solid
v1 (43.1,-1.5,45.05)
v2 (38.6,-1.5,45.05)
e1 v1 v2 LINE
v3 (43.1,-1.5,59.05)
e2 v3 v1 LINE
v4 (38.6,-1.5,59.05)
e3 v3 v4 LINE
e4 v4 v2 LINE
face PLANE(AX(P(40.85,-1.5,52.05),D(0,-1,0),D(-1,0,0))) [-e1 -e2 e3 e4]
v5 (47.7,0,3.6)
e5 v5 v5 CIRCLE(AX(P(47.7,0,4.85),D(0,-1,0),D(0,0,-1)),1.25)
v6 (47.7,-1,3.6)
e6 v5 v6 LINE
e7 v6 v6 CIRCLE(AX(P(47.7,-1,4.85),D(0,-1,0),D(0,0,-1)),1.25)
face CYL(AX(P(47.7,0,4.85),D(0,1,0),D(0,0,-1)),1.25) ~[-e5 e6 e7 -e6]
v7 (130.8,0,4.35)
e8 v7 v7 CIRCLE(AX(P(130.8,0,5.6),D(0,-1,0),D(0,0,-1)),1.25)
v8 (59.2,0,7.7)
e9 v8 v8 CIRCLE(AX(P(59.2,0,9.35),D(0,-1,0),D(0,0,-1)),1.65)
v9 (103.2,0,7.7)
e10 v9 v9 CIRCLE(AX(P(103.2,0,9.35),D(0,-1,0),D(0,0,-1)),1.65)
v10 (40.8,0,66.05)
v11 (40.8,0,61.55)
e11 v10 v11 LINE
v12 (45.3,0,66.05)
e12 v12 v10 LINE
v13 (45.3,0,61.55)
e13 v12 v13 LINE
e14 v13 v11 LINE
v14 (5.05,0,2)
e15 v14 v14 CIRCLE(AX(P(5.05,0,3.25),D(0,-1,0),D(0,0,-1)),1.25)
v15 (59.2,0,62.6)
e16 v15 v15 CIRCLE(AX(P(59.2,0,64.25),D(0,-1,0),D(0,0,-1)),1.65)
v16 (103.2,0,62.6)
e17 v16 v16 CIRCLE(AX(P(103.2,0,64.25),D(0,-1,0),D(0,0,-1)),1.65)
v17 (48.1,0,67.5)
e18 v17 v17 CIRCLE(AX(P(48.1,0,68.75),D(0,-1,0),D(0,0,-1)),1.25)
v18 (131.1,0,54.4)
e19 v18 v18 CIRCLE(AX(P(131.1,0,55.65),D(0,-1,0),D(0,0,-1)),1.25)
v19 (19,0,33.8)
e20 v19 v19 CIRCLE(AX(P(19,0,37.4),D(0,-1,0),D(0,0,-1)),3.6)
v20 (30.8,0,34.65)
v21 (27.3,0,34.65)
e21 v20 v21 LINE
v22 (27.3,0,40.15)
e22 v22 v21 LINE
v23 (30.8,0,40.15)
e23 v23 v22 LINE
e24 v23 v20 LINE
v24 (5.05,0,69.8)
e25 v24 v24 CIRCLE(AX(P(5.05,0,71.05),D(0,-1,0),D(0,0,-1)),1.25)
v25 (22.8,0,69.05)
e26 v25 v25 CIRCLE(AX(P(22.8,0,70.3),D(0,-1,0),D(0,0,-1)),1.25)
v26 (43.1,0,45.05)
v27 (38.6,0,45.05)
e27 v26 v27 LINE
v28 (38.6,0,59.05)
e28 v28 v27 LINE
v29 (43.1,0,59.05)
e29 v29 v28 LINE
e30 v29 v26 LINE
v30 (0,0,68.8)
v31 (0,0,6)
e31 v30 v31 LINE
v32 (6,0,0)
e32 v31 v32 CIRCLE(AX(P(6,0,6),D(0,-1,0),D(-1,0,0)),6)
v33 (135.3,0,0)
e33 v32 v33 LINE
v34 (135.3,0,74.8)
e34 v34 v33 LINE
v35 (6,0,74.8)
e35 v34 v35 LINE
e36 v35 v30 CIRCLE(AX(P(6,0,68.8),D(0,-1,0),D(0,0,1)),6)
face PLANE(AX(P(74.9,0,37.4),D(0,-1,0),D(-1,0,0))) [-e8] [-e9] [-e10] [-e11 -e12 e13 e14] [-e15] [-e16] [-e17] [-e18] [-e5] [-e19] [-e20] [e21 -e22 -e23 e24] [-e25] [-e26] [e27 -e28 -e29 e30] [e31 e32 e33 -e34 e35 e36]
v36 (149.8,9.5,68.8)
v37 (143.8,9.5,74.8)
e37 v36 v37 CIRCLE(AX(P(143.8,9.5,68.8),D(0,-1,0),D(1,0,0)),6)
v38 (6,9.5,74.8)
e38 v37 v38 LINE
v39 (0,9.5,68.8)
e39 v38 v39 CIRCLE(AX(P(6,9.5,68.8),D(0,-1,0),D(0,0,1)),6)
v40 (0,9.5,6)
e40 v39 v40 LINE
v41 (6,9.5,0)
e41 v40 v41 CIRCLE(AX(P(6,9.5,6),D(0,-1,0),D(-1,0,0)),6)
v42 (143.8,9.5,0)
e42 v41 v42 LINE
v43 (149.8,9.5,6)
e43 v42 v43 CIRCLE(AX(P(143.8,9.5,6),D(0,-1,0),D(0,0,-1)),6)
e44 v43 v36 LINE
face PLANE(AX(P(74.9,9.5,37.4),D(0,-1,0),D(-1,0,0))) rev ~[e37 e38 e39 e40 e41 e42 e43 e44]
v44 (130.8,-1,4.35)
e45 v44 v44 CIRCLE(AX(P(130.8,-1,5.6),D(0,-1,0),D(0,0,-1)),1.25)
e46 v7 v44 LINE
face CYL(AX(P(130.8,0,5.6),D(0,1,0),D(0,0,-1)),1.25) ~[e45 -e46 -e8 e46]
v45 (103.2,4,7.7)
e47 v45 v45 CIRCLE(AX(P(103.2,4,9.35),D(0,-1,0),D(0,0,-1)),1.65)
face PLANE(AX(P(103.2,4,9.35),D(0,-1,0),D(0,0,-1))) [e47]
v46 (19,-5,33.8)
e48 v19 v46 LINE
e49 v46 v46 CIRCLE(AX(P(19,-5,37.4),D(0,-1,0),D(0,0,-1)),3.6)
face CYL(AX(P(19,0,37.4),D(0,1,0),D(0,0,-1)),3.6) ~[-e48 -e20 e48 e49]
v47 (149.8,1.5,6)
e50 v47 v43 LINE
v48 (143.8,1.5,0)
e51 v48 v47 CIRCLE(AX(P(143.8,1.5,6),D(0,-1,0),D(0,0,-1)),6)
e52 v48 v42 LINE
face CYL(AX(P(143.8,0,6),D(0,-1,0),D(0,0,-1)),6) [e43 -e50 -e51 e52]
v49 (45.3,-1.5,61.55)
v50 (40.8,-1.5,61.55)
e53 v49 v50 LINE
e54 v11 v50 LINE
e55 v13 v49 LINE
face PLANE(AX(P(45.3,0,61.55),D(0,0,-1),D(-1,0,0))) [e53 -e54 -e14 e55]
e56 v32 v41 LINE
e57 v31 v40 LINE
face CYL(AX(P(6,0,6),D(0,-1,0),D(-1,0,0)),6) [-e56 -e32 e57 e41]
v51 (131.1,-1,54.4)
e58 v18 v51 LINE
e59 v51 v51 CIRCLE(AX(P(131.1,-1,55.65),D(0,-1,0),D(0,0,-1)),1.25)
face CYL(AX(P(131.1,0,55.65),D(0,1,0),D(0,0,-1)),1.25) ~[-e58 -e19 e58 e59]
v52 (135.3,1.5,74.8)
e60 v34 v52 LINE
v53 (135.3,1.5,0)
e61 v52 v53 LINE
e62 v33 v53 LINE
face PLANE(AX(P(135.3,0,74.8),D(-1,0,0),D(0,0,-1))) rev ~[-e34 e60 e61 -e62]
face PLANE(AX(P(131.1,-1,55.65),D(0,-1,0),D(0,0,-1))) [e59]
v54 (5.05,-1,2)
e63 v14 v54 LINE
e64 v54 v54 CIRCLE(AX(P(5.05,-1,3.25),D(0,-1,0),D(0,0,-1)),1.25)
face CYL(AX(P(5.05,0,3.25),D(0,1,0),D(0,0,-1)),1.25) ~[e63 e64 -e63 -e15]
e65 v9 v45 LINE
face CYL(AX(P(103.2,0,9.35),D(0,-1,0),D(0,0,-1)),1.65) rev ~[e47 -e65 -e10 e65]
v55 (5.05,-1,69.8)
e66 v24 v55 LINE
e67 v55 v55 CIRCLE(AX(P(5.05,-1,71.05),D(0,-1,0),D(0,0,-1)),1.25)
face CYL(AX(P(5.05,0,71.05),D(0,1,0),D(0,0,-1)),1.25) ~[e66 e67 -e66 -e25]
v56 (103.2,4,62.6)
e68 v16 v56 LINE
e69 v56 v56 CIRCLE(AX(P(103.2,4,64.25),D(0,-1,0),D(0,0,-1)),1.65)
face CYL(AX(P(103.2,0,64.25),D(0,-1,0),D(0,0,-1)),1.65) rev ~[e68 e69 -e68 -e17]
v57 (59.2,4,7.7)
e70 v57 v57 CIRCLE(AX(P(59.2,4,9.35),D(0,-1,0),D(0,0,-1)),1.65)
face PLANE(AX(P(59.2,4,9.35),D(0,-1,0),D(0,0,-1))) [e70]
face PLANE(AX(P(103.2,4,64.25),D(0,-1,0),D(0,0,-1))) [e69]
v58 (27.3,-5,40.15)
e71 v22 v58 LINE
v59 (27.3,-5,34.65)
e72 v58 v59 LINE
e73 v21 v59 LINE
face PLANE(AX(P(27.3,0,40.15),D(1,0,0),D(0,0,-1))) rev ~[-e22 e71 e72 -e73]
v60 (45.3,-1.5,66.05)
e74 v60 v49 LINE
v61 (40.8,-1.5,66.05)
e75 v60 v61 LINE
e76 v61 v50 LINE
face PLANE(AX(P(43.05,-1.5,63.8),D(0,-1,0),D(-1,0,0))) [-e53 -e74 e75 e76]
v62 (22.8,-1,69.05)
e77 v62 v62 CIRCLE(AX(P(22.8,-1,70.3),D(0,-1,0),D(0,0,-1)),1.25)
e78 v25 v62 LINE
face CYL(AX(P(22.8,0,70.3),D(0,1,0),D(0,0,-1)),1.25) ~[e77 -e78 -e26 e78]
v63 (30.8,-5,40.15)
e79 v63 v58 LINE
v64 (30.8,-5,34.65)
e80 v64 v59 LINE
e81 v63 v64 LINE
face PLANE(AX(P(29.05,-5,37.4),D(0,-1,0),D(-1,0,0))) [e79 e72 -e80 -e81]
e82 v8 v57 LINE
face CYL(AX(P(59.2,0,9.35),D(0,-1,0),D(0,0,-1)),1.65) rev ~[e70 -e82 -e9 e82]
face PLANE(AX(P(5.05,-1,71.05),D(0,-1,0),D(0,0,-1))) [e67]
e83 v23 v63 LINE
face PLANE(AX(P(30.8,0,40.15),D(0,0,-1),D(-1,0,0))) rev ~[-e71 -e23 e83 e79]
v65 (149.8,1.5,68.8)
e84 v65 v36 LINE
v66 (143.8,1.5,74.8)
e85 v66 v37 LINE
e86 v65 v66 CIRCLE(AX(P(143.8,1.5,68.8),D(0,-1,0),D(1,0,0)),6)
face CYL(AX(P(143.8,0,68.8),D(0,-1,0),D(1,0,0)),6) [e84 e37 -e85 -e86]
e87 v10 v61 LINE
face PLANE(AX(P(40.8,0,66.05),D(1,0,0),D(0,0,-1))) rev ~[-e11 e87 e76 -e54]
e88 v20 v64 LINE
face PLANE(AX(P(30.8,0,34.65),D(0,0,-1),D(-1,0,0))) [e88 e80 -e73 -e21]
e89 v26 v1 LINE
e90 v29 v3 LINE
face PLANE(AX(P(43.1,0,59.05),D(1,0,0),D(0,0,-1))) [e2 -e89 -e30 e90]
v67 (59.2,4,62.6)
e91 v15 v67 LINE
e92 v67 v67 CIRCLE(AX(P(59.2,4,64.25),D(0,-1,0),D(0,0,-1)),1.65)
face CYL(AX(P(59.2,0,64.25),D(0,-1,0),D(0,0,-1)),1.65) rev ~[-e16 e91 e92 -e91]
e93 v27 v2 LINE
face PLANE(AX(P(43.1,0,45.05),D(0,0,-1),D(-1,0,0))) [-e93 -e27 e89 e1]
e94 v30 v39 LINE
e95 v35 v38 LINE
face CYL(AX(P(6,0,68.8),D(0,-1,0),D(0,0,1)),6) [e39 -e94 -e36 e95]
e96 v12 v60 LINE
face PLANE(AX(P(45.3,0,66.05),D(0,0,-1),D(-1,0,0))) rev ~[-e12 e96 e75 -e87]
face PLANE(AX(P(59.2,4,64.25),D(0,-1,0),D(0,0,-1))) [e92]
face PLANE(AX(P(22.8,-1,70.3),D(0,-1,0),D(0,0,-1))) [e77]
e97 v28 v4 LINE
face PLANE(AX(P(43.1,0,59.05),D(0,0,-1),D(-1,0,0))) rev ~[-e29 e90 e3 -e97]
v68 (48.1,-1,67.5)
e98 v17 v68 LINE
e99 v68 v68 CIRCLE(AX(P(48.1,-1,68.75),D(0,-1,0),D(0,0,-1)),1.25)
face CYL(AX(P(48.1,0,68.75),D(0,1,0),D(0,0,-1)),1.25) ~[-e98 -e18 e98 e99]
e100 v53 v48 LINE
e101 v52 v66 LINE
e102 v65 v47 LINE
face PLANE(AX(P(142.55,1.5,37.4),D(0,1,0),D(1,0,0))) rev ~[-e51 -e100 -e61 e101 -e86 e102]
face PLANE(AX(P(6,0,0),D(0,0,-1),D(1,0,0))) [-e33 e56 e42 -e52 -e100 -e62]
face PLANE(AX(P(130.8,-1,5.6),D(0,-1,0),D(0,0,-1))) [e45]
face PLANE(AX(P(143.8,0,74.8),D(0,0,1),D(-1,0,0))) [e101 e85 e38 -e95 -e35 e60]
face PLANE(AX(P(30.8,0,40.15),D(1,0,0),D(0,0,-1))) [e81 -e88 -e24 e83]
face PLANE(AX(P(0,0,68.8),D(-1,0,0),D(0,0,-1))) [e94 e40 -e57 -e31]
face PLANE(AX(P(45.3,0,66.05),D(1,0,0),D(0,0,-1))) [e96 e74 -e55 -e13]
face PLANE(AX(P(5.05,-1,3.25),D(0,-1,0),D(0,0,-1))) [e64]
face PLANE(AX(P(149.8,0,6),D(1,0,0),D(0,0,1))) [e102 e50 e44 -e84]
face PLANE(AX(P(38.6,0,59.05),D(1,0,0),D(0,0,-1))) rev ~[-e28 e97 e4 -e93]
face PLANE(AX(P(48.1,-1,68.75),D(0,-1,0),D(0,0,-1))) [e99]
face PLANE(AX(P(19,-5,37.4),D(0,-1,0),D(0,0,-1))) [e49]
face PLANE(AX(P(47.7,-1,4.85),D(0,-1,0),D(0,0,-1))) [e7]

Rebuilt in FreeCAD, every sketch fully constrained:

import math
import FreeCAD as App
import Part
import Sketcher
Q = App.Units.Quantity

doc = App.newDocument("Part")
body = doc.addObject("PartDesign::Body", "Body")

# Sketch on XZ plane
sketch1 = body.newObject("Sketcher::SketchObject", "Sketch")
sketch1.AttachmentSupport = (doc.getObject("XZ_Plane"), [""])
sketch1.MapMode = "FlatFace"
sketch1.addGeometry([
    Part.LineSegment(App.Vector(144, 0, 0), App.Vector(6, 0, 0)),  # 0
    Part.ArcOfCircle(Part.Circle(App.Vector(6, 6, 0), App.Vector(0, 0, 1), 6), math.radians(180), math.radians(270)),  # 1
    Part.LineSegment(App.Vector(0, 6, 0), App.Vector(0, 69, 0)),  # 2
    Part.ArcOfCircle(Part.Circle(App.Vector(6, 69, 0), App.Vector(0, 0, 1), 6), math.radians(90), math.radians(180)),  # 3
    Part.LineSegment(App.Vector(6, 75, 0), App.Vector(144, 75, 0)),  # 4
    Part.ArcOfCircle(Part.Circle(App.Vector(144, 69, 0), App.Vector(0, 0, 1), 6), math.radians(0), math.radians(90)),  # 5
    Part.LineSegment(App.Vector(150, 69, 0), App.Vector(150, 6, 0)),  # 6
    Part.ArcOfCircle(Part.Circle(App.Vector(144, 6, 0), App.Vector(0, 0, 1), 6), math.radians(-90), math.radians(0)),  # 7
], False)
sketch1.addConstraint([
    Sketcher.Constraint("Tangent", 0, 2, 1, 2),
    Sketcher.Constraint("Tangent", 1, 1, 2, 1),
    Sketcher.Constraint("Tangent", 2, 2, 3, 2),
    Sketcher.Constraint("Tangent", 3, 1, 4, 1),
    Sketcher.Constraint("Tangent", 4, 2, 5, 2),
    Sketcher.Constraint("Tangent", 5, 1, 6, 1),
    Sketcher.Constraint("Tangent", 6, 2, 7, 2),
    Sketcher.Constraint("Tangent", 7, 1, 0, 1),
    Sketcher.Constraint("Horizontal", 0),
    Sketcher.Constraint("Vertical", 2),
    Sketcher.Constraint("Horizontal", 4),
    Sketcher.Constraint("Vertical", 6),
    Sketcher.Constraint("Equal", 1, 3),
    Sketcher.Constraint("Equal", 3, 5),
    Sketcher.Constraint("Equal", 5, 7),
    Sketcher.Constraint("PointOnObject", 0, 2, -1),
    Sketcher.Constraint("PointOnObject", 1, 1, -2),
    Sketcher.Constraint("Radius", 1, Q("6 mm")),
    Sketcher.Constraint("DistanceX", 0, 2, 0, 1, Q("137.8 mm")),
    Sketcher.Constraint("DistanceY", 2, 1, 2, 2, Q("62.8 mm")),
])
pad1 = body.newObject("PartDesign::Pad", "Pad")
pad1.Profile = sketch1
pad1.Length = 9.5
pad1.Reversed = True

# Sketch on XZ plane
sketch2 = body.newObject("Sketcher::SketchObject", "Sketch001")
sketch2.AttachmentSupport = (doc.getObject("XZ_Plane"), [""])
sketch2.MapMode = "FlatFace"
sketch2.addGeometry([
    Part.LineSegment(App.Vector(43.1, 45, 0), App.Vector(43.1, 59, 0)),  # 0
    Part.LineSegment(App.Vector(43.1, 59, 0), App.Vector(38.6, 59, 0)),  # 1
    Part.LineSegment(App.Vector(38.6, 59, 0), App.Vector(38.6, 45, 0)),  # 2
    Part.LineSegment(App.Vector(38.6, 45, 0), App.Vector(43.1, 45, 0)),  # 3
    Part.LineSegment(App.Vector(45.3, 61.5, 0), App.Vector(45.3, 66, 0)),  # 4
    Part.LineSegment(App.Vector(45.3, 66, 0), App.Vector(40.8, 66, 0)),  # 5
    Part.LineSegment(App.Vector(40.8, 66, 0), App.Vector(40.8, 61.5, 0)),  # 6
    Part.LineSegment(App.Vector(40.8, 61.5, 0), App.Vector(45.3, 61.5, 0)),  # 7
], False)
sketch2.addConstraint([
    Sketcher.Constraint("Coincident", 0, 2, 1, 1),
    Sketcher.Constraint("Coincident", 1, 2, 2, 1),
    Sketcher.Constraint("Coincident", 2, 2, 3, 1),
    Sketcher.Constraint("Coincident", 3, 2, 0, 1),
    Sketcher.Constraint("Coincident", 4, 2, 5, 1),
    Sketcher.Constraint("Coincident", 5, 2, 6, 1),
    Sketcher.Constraint("Coincident", 6, 2, 7, 1),
    Sketcher.Constraint("Coincident", 7, 2, 4, 1),
    Sketcher.Constraint("Vertical", 0),
    Sketcher.Constraint("Horizontal", 1),
    Sketcher.Constraint("Vertical", 2),
    Sketcher.Constraint("Horizontal", 3),
    Sketcher.Constraint("Vertical", 4),
    Sketcher.Constraint("Horizontal", 5),
    Sketcher.Constraint("Vertical", 6),
    Sketcher.Constraint("Horizontal", 7),
    Sketcher.Constraint("Equal", 3, 5),
    Sketcher.Constraint("Equal", 7, 4),
    Sketcher.Constraint("DistanceY", 0, 1, 0, 2, Q("14 mm")),
    Sketcher.Constraint("DistanceX", 1, 2, 1, 1, Q("4.5 mm")),
    Sketcher.Constraint("DistanceY", 0, 2, 4, 2, Q("7 mm")),
    Sketcher.Constraint("DistanceX", -1, 1, 0, 2, Q("43.1 mm")),
    Sketcher.Constraint("DistanceX", -1, 1, 4, 2, Q("45.3 mm")),
    Sketcher.Constraint("DistanceY", -1, 1, 0, 2, Q("59.05 mm")),
])
pad2 = body.newObject("PartDesign::Pad", "Pad001")
pad2.Profile = sketch2
pad2.Length = 1.5

# Sketch on XZ plane
sketch3 = body.newObject("Sketcher::SketchObject", "Sketch002")
sketch3.AttachmentSupport = (doc.getObject("XZ_Plane"), [""])
sketch3.MapMode = "FlatFace"
sketch3.addGeometry([
    Part.Circle(App.Vector(130.8, 5.6, 0), App.Vector(0, 0, 1), 1.2),  # 0
    Part.Circle(App.Vector(131.1, 55.6, 0), App.Vector(0, 0, 1), 1.2),  # 1
    Part.Circle(App.Vector(47.7, 4.8, 0), App.Vector(0, 0, 1), 1.2),  # 2
    Part.Circle(App.Vector(48.1, 68.8, 0), App.Vector(0, 0, 1), 1.2),  # 3
    Part.Circle(App.Vector(22.8, 70.3, 0), App.Vector(0, 0, 1), 1.2),  # 4
    Part.Circle(App.Vector(5, 71, 0), App.Vector(0, 0, 1), 1.2),  # 5
    Part.Circle(App.Vector(5, 3.2, 0), App.Vector(0, 0, 1), 1.2),  # 6
], False)
sketch3.addConstraint([
    Sketcher.Constraint("Equal", 0, 1),
    Sketcher.Constraint("Equal", 1, 2),
    Sketcher.Constraint("Equal", 2, 3),
    Sketcher.Constraint("Equal", 3, 4),
    Sketcher.Constraint("Equal", 4, 5),
    Sketcher.Constraint("Equal", 5, 6),
    Sketcher.Constraint("Vertical", 5, 3, 6, 3),
    Sketcher.Constraint("Diameter", 0, Q("2.5 mm")),
    Sketcher.Constraint("DistanceX", 3, 3, 1, 3, Q("83 mm")),
    Sketcher.Constraint("DistanceX", 4, 3, 0, 3, Q("108 mm")),
    Sketcher.Constraint("DistanceX", -1, 1, 0, 3, Q("130.8 mm")),
    Sketcher.Constraint("DistanceY", -1, 1, 0, 3, Q("5.6 mm")),
    Sketcher.Constraint("DistanceX", -1, 1, 1, 3, Q("131.1 mm")),
    Sketcher.Constraint("DistanceX", -1, 1, 2, 3, Q("47.7 mm")),
    Sketcher.Constraint("DistanceY", -1, 1, 4, 3, Q("70.3 mm")),
    Sketcher.Constraint("DistanceY", 2, 3, 1, 3, Q("50.8 mm")),
    Sketcher.Constraint("DistanceY", 2, 3, 3, 3, Q("63.9 mm")),
    Sketcher.Constraint("DistanceY", 3, 3, 5, 3, Q("2.3 mm")),
    Sketcher.Constraint("DistanceY", 6, 3, 2, 3, Q("1.6 mm")),
    Sketcher.Constraint("DistanceY", -1, 1, 1, 3, Q("55.65 mm")),
    Sketcher.Constraint("DistanceX", -1, 1, 5, 3, Q("5.05 mm")),
])
pad3 = body.newObject("PartDesign::Pad", "Pad002")
pad3.Profile = sketch3
pad3.Length = 1

# Sketch on XZ plane
sketch4 = body.newObject("Sketcher::SketchObject", "Sketch003")
sketch4.AttachmentSupport = (doc.getObject("XZ_Plane"), [""])
sketch4.MapMode = "FlatFace"
sketch4.addGeometry([
    Part.Circle(App.Vector(103.2, 9.3, 0), App.Vector(0, 0, 1), 1.6),
    Part.Circle(App.Vector(103.2, 64.2, 0), App.Vector(0, 0, 1), 1.6),
    Part.Circle(App.Vector(59.2, 64.2, 0), App.Vector(0, 0, 1), 1.6),
    Part.Circle(App.Vector(59.2, 9.3, 0), App.Vector(0, 0, 1), 1.6),
], False)
sketch4.addConstraint([
    Sketcher.Constraint("Equal", 0, 1),
    Sketcher.Constraint("Equal", 1, 2),
    Sketcher.Constraint("Equal", 2, 3),
    Sketcher.Constraint("Horizontal", 1, 3, 2, 3),
    Sketcher.Constraint("Horizontal", 0, 3, 3, 3),
    Sketcher.Constraint("Vertical", 0, 3, 1, 3),
    Sketcher.Constraint("Vertical", 2, 3, 3, 3),
    Sketcher.Constraint("Diameter", 0, Q("3.3 mm")),
    Sketcher.Constraint("DistanceX", 2, 3, 1, 3, Q("44 mm")),
    Sketcher.Constraint("DistanceX", -1, 1, 0, 3, Q("103.2 mm")),
    Sketcher.Constraint("DistanceY", 0, 3, 1, 3, Q("54.9 mm")),
    Sketcher.Constraint("DistanceY", -1, 1, 0, 3, Q("9.35 mm")),
])
pocket1 = body.newObject("PartDesign::Pocket", "Pocket")
pocket1.Profile = sketch4
pocket1.Length = 4

# Sketch on XZ plane
sketch5 = body.newObject("Sketcher::SketchObject", "Sketch004")
sketch5.AttachmentSupport = (doc.getObject("XZ_Plane"), [""])
sketch5.MapMode = "FlatFace"
sketch5.addGeometry([
    Part.LineSegment(App.Vector(135, 0, 0), App.Vector(135, 75, 0)),
    Part.LineSegment(App.Vector(135, 75, 0), App.Vector(150, 75, 0)),
    Part.LineSegment(App.Vector(150, 75, 0), App.Vector(150, 0, 0)),
    Part.LineSegment(App.Vector(150, 0, 0), App.Vector(135, 0, 0)),
], False)
sketch5.addConstraint([
    Sketcher.Constraint("Coincident", 0, 2, 1, 1),
    Sketcher.Constraint("Coincident", 1, 2, 2, 1),
    Sketcher.Constraint("Coincident", 2, 2, 3, 1),
    Sketcher.Constraint("Coincident", 3, 2, 0, 1),
    Sketcher.Constraint("Vertical", 0),
    Sketcher.Constraint("Horizontal", 1),
    Sketcher.Constraint("Vertical", 2),
    Sketcher.Constraint("Horizontal", 3),
    Sketcher.Constraint("PointOnObject", 2, 2, -1),
    Sketcher.Constraint("DistanceX", 1, 1, 1, 2, Q("14.5 mm")),
    Sketcher.Constraint("DistanceY", 0, 1, 0, 2, Q("74.8 mm")),
    Sketcher.Constraint("DistanceX", -1, 1, 0, 2, Q("135.3 mm")),
])
pocket2 = body.newObject("PartDesign::Pocket", "Pocket001")
pocket2.Profile = sketch5
pocket2.Length = 1.5

# Sketch on XZ plane
sketch6 = body.newObject("Sketcher::SketchObject", "Sketch005")
sketch6.AttachmentSupport = (doc.getObject("XZ_Plane"), [""])
sketch6.MapMode = "FlatFace"
sketch6.addGeometry([
    Part.Circle(App.Vector(19, 37.4, 0), App.Vector(0, 0, 1), 3.6),  # 0
    Part.LineSegment(App.Vector(30.8, 34.6, 0), App.Vector(30.8, 40.1, 0)),  # 1
    Part.LineSegment(App.Vector(30.8, 40.1, 0), App.Vector(27.3, 40.1, 0)),  # 2
    Part.LineSegment(App.Vector(27.3, 40.1, 0), App.Vector(27.3, 34.6, 0)),  # 3
    Part.LineSegment(App.Vector(27.3, 34.6, 0), App.Vector(30.8, 34.6, 0)),  # 4
], False)
sketch6.addConstraint([
    Sketcher.Constraint("Coincident", 1, 2, 2, 1),
    Sketcher.Constraint("Coincident", 2, 2, 3, 1),
    Sketcher.Constraint("Coincident", 3, 2, 4, 1),
    Sketcher.Constraint("Coincident", 4, 2, 1, 1),
    Sketcher.Constraint("Vertical", 1),
    Sketcher.Constraint("Horizontal", 2),
    Sketcher.Constraint("Vertical", 3),
    Sketcher.Constraint("Horizontal", 4),
    Sketcher.Constraint("Diameter", 0, Q("7.2 mm")),
    Sketcher.Constraint("DistanceX", 2, 2, 2, 1, Q("3.5 mm")),
    Sketcher.Constraint("DistanceY", 1, 1, 1, 2, Q("5.5 mm")),
    Sketcher.Constraint("DistanceX", -1, 1, 0, 3, Q("19 mm")),
    Sketcher.Constraint("DistanceY", -1, 1, 0, 3, Q("37.4 mm")),
    Sketcher.Constraint("DistanceX", -1, 1, 1, 2, Q("30.8 mm")),
    Sketcher.Constraint("DistanceY", -1, 1, 1, 2, Q("40.15 mm")),
])
pad4 = body.newObject("PartDesign::Pad", "Pad003")
pad4.Profile = sketch6
pad4.Length = 5

doc.recompute()
